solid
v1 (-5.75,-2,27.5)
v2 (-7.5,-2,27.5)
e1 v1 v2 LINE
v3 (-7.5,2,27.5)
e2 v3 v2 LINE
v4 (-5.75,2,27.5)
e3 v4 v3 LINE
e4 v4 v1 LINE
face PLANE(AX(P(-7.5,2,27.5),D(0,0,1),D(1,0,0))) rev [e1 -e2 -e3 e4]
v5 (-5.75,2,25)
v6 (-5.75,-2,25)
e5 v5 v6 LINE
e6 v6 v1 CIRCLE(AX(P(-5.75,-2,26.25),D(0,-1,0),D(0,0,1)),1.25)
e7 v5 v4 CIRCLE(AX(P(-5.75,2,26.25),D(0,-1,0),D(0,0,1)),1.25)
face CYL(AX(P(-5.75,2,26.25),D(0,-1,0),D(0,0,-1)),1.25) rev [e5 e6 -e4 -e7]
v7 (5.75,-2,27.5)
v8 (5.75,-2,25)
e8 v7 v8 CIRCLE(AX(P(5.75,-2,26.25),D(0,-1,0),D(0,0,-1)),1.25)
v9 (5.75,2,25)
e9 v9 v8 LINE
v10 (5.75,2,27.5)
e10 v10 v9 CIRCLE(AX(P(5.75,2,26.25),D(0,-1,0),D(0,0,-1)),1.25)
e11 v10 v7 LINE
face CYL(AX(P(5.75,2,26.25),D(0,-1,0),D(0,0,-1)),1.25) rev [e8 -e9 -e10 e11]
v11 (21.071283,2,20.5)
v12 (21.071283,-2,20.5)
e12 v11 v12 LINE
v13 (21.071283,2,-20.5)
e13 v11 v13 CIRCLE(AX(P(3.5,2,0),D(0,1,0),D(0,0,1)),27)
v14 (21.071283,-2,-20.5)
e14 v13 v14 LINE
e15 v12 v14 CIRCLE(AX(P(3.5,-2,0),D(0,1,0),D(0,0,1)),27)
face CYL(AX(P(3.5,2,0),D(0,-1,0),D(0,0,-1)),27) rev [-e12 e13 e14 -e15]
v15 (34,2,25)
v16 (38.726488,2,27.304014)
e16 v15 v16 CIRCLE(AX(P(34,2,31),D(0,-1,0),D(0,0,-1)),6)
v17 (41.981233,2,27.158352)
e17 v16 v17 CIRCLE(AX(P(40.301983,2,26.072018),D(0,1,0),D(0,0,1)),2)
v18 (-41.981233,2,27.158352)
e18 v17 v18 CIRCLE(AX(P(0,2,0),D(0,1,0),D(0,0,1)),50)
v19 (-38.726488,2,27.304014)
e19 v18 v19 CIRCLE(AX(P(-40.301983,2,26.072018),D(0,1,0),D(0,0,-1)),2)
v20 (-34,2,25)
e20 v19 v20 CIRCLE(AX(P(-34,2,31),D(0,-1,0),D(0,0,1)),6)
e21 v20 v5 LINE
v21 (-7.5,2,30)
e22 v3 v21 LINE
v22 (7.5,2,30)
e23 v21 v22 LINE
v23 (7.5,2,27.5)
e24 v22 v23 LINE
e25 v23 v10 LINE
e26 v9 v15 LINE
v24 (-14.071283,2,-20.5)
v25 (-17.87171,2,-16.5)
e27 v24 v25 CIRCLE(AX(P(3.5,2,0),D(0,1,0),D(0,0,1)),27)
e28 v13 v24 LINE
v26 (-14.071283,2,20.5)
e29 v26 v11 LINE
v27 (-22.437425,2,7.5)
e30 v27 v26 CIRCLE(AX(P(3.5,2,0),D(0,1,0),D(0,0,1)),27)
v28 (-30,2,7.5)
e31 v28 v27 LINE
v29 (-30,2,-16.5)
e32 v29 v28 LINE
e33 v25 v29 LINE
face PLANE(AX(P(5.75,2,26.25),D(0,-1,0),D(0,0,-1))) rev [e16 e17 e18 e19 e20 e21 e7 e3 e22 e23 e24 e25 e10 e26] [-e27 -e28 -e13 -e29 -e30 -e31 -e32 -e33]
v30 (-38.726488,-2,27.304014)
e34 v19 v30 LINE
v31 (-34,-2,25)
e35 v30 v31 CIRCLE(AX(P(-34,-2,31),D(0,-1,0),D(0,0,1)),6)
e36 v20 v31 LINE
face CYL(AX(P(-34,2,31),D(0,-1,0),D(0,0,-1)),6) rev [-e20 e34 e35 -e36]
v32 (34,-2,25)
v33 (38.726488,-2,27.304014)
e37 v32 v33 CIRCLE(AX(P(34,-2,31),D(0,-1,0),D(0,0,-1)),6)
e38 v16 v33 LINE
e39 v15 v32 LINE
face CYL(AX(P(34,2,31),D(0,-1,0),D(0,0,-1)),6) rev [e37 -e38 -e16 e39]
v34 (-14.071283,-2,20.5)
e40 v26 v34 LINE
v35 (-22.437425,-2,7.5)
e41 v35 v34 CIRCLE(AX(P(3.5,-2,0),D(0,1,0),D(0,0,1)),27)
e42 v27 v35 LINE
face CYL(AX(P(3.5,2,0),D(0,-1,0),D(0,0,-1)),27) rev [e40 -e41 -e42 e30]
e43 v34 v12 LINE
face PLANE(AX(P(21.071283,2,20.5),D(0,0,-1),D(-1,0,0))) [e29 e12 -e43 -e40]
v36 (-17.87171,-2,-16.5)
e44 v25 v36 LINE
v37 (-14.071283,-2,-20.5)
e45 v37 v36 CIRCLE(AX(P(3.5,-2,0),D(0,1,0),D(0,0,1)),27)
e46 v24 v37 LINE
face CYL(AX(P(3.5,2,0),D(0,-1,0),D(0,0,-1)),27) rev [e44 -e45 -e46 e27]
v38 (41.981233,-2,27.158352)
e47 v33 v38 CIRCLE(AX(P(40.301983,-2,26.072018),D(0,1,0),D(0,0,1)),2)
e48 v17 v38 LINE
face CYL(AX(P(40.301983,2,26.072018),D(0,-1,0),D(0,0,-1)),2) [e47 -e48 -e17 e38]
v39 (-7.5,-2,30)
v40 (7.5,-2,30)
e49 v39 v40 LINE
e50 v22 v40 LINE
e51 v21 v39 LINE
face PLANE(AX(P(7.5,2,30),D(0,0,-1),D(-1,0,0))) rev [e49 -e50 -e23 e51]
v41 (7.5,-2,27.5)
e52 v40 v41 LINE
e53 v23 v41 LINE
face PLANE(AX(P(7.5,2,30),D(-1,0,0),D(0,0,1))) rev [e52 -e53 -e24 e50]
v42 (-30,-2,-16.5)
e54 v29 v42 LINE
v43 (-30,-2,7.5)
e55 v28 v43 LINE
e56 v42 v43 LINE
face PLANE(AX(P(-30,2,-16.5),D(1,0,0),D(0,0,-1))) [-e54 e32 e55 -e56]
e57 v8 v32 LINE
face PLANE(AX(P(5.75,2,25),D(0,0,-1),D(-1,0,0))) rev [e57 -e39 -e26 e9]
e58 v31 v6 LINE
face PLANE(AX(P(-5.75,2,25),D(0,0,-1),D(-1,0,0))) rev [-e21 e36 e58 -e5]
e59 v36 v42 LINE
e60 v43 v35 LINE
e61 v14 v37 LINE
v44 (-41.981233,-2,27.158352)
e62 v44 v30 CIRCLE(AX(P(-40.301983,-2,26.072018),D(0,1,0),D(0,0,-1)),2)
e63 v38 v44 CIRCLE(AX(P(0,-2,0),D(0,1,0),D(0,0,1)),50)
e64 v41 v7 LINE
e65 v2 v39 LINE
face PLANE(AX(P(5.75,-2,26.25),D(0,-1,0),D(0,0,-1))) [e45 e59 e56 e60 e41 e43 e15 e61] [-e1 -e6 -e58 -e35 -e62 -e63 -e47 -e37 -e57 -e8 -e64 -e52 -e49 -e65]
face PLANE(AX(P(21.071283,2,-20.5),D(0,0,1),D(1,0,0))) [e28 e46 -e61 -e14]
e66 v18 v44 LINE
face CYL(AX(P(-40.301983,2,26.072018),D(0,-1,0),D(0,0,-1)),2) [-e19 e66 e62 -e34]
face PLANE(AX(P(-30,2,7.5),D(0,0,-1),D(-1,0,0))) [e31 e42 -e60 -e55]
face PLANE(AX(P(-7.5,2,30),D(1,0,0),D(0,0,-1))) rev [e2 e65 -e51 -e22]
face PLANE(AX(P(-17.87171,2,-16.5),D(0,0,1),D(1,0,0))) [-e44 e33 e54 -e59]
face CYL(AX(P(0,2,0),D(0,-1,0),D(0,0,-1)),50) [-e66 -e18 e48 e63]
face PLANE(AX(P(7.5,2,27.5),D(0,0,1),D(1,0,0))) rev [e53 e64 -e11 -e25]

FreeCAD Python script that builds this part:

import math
import FreeCAD as App
import Part
import Sketcher

V = App.Vector
Q = App.Units.Quantity

doc = App.newDocument("Part")
body = doc.addObject("PartDesign::Body", "Body")

# Sketch on XZ plane
sketch1 = body.newObject("Sketcher::SketchObject", "Sketch")
sketch1.AttachmentSupport = (doc.getObject("XZ_Plane"), [""])
sketch1.MapMode = "FlatFace"
sketch1.addGeometry([
    Part.LineSegment(V(-7.5, 30, 0), V(7.5, 30, 0)),  # 0
    Part.LineSegment(V(7.5, 30, 0), V(7.5, 27.5, 0)),  # 1
    Part.LineSegment(V(7.5, 27.5, 0), V(5.8, 27.5, 0)),  # 2
    Part.ArcOfCircle(Part.Circle(V(5.8, 26.2, 0), V(0, 0, 1), 1.2), math.radians(90), math.radians(270)),  # 3
    Part.LineSegment(V(5.8, 25, 0), V(34, 25, 0)),  # 4
    Part.ArcOfCircle(Part.Circle(V(34, 31, 0), V(0, 0, 1), 6), math.radians(-90), math.radians(-38)),  # 5
    Part.ArcOfCircle(Part.Circle(V(40.3, 26.1, 0), V(0, 0, 1), 2), math.radians(33), math.radians(142)),  # 6
    Part.ArcOfCircle(Part.Circle(V(0, 0, 0), V(0, 0, 1), 50), math.radians(147), math.radians(393)),  # 7
    Part.ArcOfCircle(Part.Circle(V(-40.3, 26.1, 0), V(0, 0, 1), 2), math.radians(38), math.radians(147)),  # 8
    Part.ArcOfCircle(Part.Circle(V(-34, 31, 0), V(0, 0, 1), 6), math.radians(-142), math.radians(-90)),  # 9
    Part.LineSegment(V(-34, 25, 0), V(-5.8, 25, 0)),  # 10
    Part.ArcOfCircle(Part.Circle(V(-5.8, 26.2, 0), V(0, 0, 1), 1.2), math.radians(-90), math.radians(90)),  # 11
    Part.LineSegment(V(-5.8, 27.5, 0), V(-7.5, 27.5, 0)),  # 12
    Part.LineSegment(V(-7.5, 27.5, 0), V(-7.5, 30, 0)),  # 13
    Part.ArcOfCircle(Part.Circle(V(3.5, 0, 0), V(0, 0, 1), 27), math.radians(-49), math.radians(49)),  # 14
    Part.LineSegment(V(21.1, 20.5, 0), V(-14.1, 20.5, 0)),  # 15
    Part.ArcOfCircle(Part.Circle(V(3.5, 0, 0), V(0, 0, 1), 27), math.radians(131), math.radians(164)),  # 16
    Part.LineSegment(V(-22.4, 7.5, 0), V(-30, 7.5, 0)),  # 17
    Part.LineSegment(V(-30, 7.5, 0), V(-30, -16.5, 0)),  # 18
    Part.LineSegment(V(-30, -16.5, 0), V(-17.9, -16.5, 0)),  # 19
    Part.ArcOfCircle(Part.Circle(V(3.5, 0, 0), V(0, 0, 1), 27), math.radians(-142.33), math.radians(-130.6)),  # 20
    Part.LineSegment(V(-14.1, -20.5, 0), V(21.1, -20.5, 0)),  # 21
], False)
sketch1.addConstraint([
    Sketcher.Constraint("Coincident", 0, 2, 1, 1),
    Sketcher.Constraint("Coincident", 1, 2, 2, 1),
    Sketcher.Constraint("Tangent", 2, 2, 3, 1),
    Sketcher.Constraint("Tangent", 3, 2, 4, 1),
    Sketcher.Constraint("Tangent", 4, 2, 5, 1),
    Sketcher.Constraint("Tangent", 5, 2, 6, 2),
    Sketcher.Constraint("Tangent", 6, 1, 7, 2),
    Sketcher.Constraint("Tangent", 7, 1, 8, 2),
    Sketcher.Constraint("Tangent", 8, 1, 9, 1),
    Sketcher.Constraint("Tangent", 9, 2, 10, 1),
    Sketcher.Constraint("Tangent", 10, 2, 11, 1),
    Sketcher.Constraint("Tangent", 11, 2, 12, 1),
    Sketcher.Constraint("Coincident", 12, 2, 13, 1),
    Sketcher.Constraint("Coincident", 13, 2, 0, 1),
    Sketcher.Constraint("Coincident", 14, 2, 15, 1),
    Sketcher.Constraint("Coincident", 15, 2, 16, 1),
    Sketcher.Constraint("Coincident", 16, 2, 17, 1),
    Sketcher.Constraint("Coincident", 17, 2, 18, 1),
    Sketcher.Constraint("Coincident", 18, 2, 19, 1),
    Sketcher.Constraint("Coincident", 19, 2, 20, 1),
    Sketcher.Constraint("Coincident", 20, 2, 21, 1),
    Sketcher.Constraint("Coincident", 21, 2, 14, 1),
    Sketcher.Constraint("Horizontal", 0),
    Sketcher.Constraint("Vertical", 1),
    Sketcher.Constraint("Horizontal", 2),
    Sketcher.Constraint("Horizontal", 4),
    Sketcher.Constraint("Horizontal", 10),
    Sketcher.Constraint("Horizontal", 12),
    Sketcher.Constraint("Vertical", 13),
    Sketcher.Constraint("Horizontal", 15),
    Sketcher.Constraint("Horizontal", 17),
    Sketcher.Constraint("Vertical", 18),
    Sketcher.Constraint("Horizontal", 19),
    Sketcher.Constraint("Horizontal", 21),
    Sketcher.Constraint("Coincident", 7, 3, -1, 1),
    Sketcher.Constraint("Coincident", 16, 3, 14, 3),
    Sketcher.Constraint("Coincident", 20, 3, 14, 3),
    Sketcher.Constraint("Equal", 6, 8),
    Sketcher.Constraint("Equal", 5, 9),
    Sketcher.Constraint("Equal", 3, 11),
    Sketcher.Constraint("Equal", 14, 16),
    Sketcher.Constraint("Equal", 16, 20),
    Sketcher.Constraint("Symmetric", 5, 3, 9, 3, -2),
    Sketcher.Constraint("Symmetric", 15, 2, 20, 2, -1),
    Sketcher.Constraint("Equal", 4, 10),
    Sketcher.Constraint("Equal", 2, 12),
    Sketcher.Constraint("Radius", 5, Q("6 mm")),
    Sketcher.Constraint("Radius", 6, Q("2 mm")),
    Sketcher.Constraint("Radius", 7, Q("50 mm")),
    Sketcher.Constraint("Radius", 14, Q("27 mm")),
    Sketcher.Constraint("DistanceX", 0, 1, 0, 2, Q("15 mm")),
    Sketcher.Constraint("DistanceY", 18, 2, 18, 1, Q("24 mm")),
    Sketcher.Constraint("Radius", 3, Q("1.25 mm")),
    Sketcher.Constraint("DistanceY", 1, 2, 1, 1, Q("2.5 mm")),
    Sketcher.Constraint("DistanceX", -1, 1, 5, 3, Q("34 mm")),
    Sketcher.Constraint("DistanceY", -1, 1, 5, 3, Q("31 mm")),
    Sketcher.Constraint("DistanceX", 17, 2, -1, 1, Q("30 mm")),
    Sketcher.Constraint("DistanceX", 20, 3, 0, 2, Q("4 mm")),
    Sketcher.Constraint("DistanceY", 14, 2, 1, 2, Q("7 mm")),
    Sketcher.Constraint("DistanceY", 16, 2, 15, 2, Q("13 mm")),
    Sketcher.Constraint("DistanceX", 2, 2, 2, 1, Q("1.75 mm")),
])
pad1 = body.newObject("PartDesign::Pad", "Pad")
pad1.Profile = sketch1
pad1.Length = 4
pad1.Midplane = True

doc.recompute()
